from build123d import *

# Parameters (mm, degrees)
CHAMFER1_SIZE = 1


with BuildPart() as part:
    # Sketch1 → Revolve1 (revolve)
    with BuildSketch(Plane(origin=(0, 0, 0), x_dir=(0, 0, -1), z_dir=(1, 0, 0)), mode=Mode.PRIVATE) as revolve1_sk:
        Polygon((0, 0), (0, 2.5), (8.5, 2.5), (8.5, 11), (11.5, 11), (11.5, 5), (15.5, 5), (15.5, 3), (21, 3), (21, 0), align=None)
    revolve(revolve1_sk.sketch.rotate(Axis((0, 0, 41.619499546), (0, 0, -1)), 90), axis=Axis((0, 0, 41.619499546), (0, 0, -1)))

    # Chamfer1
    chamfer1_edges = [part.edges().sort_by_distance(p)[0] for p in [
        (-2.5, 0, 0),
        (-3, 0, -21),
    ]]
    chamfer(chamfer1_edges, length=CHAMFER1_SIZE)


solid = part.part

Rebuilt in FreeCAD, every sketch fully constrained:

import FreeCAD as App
import Part
import Sketcher
from FreeCAD import Vector


def edges_at(feature, points):
    """Names of the edges that pass closest to the given points."""
    edges = feature.Shape.Edges
    near = lambda p: min(range(len(edges)), key=lambda i: edges[i].distToShape(Part.Vertex(*p))[0])
    return sorted({f"Edge{near(p) + 1}" for p in points})


def add_polygon(sketch, points):
    """Adds a closed chain of lines whose ends are joined by coincident constraints."""
    first, n = sketch.GeometryCount, len(points)
    for a, b in zip(points, points[1:] + points[:1]):
        sketch.addGeometry(Part.LineSegment(App.Vector(*a, 0), App.Vector(*b, 0)), False)
    for i in range(n):
        sketch.addConstraint(Sketcher.Constraint("Coincident", first + i, 2, first + (i + 1) % n, 1))

doc = App.newDocument("Part")
body = doc.addObject("PartDesign::Body", "Body")

# Sketch on YZ plane
sketch1 = body.newObject("Sketcher::SketchObject", "Sketch")
sketch1.AttachmentSupport = (doc.getObject("YZ_Plane"), [""])
sketch1.MapMode = "FlatFace"
add_polygon(sketch1, [(2.5, 0), (0, 0), (0, -21), (3, -21), (3, -15.5), (5, -15.5), (5, -11.5), (11, -11.5), (11, -8.5), (2.5, -8.5)])  # lines 0-9
sketch1.addConstraint([
    Sketcher.Constraint("Horizontal", 0),
    Sketcher.Constraint("Vertical", 1),
    Sketcher.Constraint("Horizontal", 2),
    Sketcher.Constraint("Vertical", 3),
    Sketcher.Constraint("Horizontal", 4),
    Sketcher.Constraint("Vertical", 5),
    Sketcher.Constraint("Horizontal", 6),
    Sketcher.Constraint("Vertical", 7),
    Sketcher.Constraint("Horizontal", 8),
    Sketcher.Constraint("Vertical", 9),
    Sketcher.Constraint("Coincident", 0, 2, -1, 1),
    Sketcher.Constraint("Equal", 2, 7),
    Sketcher.Constraint("Equal", 8, 9),
    Sketcher.Constraint("DistanceX", 2, 1, 2, 2, 3.0),
    Sketcher.Constraint("DistanceX", 4, 1, 4, 2, 2.0),
    Sketcher.Constraint("DistanceX", 6, 1, 6, 2, 6.0),
    Sketcher.Constraint("DistanceY", 1, 2, 1, 1, 21.0),
    Sketcher.Constraint("DistanceY", 5, 1, 5, 2, 4.0),
    Sketcher.Constraint("DistanceX", 0, 2, 0, 1, 2.5),
])
revolution = body.newObject("PartDesign::Revolution", "Revolution")
revolution.Profile = sketch1
revolution.ReferenceAxis = (sketch1, ["V_Axis"])
revolution.Angle = 360
doc.recompute()

chamfer = body.newObject("PartDesign::Chamfer", "Chamfer")
chamfer.Base = (revolution, edges_at(revolution, [(-2.5, 0, 0), (-3, 0, -21)]))
chamfer.Size = 1

doc.recompute()
